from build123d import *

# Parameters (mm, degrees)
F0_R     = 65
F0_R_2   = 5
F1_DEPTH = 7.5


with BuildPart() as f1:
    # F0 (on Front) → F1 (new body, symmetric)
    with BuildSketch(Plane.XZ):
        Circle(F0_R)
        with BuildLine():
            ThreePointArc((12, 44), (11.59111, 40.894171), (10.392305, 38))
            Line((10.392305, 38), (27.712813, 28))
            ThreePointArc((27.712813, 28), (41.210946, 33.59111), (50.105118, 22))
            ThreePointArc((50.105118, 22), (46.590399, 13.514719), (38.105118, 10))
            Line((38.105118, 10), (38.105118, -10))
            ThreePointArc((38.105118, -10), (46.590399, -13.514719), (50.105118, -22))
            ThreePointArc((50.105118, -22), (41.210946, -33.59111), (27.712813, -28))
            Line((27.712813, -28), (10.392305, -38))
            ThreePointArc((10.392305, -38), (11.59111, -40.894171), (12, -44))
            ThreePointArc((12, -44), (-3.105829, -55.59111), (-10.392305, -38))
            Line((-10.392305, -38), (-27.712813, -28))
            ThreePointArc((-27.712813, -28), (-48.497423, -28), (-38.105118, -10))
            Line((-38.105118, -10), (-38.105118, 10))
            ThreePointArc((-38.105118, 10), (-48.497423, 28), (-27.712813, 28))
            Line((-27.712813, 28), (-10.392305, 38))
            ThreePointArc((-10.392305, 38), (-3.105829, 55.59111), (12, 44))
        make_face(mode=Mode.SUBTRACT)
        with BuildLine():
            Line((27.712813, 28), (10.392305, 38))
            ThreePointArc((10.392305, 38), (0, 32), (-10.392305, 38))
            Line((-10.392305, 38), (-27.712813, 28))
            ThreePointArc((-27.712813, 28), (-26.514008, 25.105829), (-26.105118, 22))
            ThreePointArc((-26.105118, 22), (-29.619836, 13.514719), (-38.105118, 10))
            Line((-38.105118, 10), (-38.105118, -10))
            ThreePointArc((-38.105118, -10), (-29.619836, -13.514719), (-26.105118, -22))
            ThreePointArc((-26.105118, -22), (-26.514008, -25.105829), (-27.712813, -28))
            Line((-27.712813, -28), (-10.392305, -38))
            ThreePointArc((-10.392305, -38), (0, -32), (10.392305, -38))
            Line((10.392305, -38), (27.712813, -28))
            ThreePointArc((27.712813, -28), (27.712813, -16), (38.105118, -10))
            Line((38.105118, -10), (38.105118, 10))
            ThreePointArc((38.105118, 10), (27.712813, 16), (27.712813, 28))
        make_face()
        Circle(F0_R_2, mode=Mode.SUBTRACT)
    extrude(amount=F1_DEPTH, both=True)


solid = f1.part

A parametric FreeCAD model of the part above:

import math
import FreeCAD as App
import Part
import Sketcher
Q = App.Units.Quantity

doc = App.newDocument("Part")
body = doc.addObject("PartDesign::Body", "Body")

sketch1 = body.newObject("Sketcher::SketchObject", "Sketch")
sketch1.AttachmentSupport = (doc.getObject("XZ_Plane"), [""])
sketch1.MapMode = "FlatFace"
sketch1.addGeometry([
    Part.Circle(App.Vector(0, 0, 0), App.Vector(0, 0, 1), 65),
    Part.ArcOfCircle(Part.Circle(App.Vector(0, -44, 0), App.Vector(0, 0, 1), 12), math.radians(150), math.radians(360)),
    Part.ArcOfCircle(Part.Circle(App.Vector(0, -44, 0), App.Vector(0, 0, 1), 12), math.radians(30), math.radians(150)),
    Part.ArcOfCircle(Part.Circle(App.Vector(0, -44, 0), App.Vector(0, 0, 1), 12), math.radians(0), math.radians(30)),
    Part.ArcOfCircle(Part.Circle(App.Vector(-38, -22, 0), App.Vector(0, 0, 1), 12), math.radians(90), math.radians(330)),
    Part.ArcOfCircle(Part.Circle(App.Vector(-38, -22, 0), App.Vector(0, 0, 1), 12), math.radians(0), math.radians(90)),
    Part.ArcOfCircle(Part.Circle(App.Vector(-38, -22, 0), App.Vector(0, 0, 1), 12), math.radians(-30), math.radians(0)),
    Part.ArcOfCircle(Part.Circle(App.Vector(38, -22, 0), App.Vector(0, 0, 1), 12), math.radians(-150), math.radians(0)),
    Part.ArcOfCircle(Part.Circle(App.Vector(38, -22, 0), App.Vector(0, 0, 1), 12), math.radians(90), math.radians(210)),
    Part.ArcOfCircle(Part.Circle(App.Vector(38, -22, 0), App.Vector(0, 0, 1), 12), math.radians(0), math.radians(90)),
    Part.ArcOfCircle(Part.Circle(App.Vector(-38, 22, 0), App.Vector(0, 0, 1), 12), math.radians(30), math.radians(270)),
    Part.ArcOfCircle(Part.Circle(App.Vector(-38, 22, 0), App.Vector(0, 0, 1), 12), math.radians(0), math.radians(30)),
    Part.ArcOfCircle(Part.Circle(App.Vector(-38, 22, 0), App.Vector(0, 0, 1), 12), math.radians(-90), math.radians(0)),
    Part.ArcOfCircle(Part.Circle(App.Vector(0, 44, 0), App.Vector(0, 0, 1), 12), math.radians(0), math.radians(210)),
    Part.ArcOfCircle(Part.Circle(App.Vector(0, 44, 0), App.Vector(0, 0, 1), 12), math.radians(-30), math.radians(0)),
    Part.ArcOfCircle(Part.Circle(App.Vector(0, 44, 0), App.Vector(0, 0, 1), 12), math.radians(-150), math.radians(-30)),
    Part.Circle(App.Vector(0, 0, 0), App.Vector(0, 0, 1), 5),
    Part.ArcOfCircle(Part.Circle(App.Vector(38, 22, 0), App.Vector(0, 0, 1), 12), math.radians(-90), math.radians(0)),
    Part.ArcOfCircle(Part.Circle(App.Vector(38, 22, 0), App.Vector(0, 0, 1), 12), math.radians(150), math.radians(270)),
    Part.ArcOfCircle(Part.Circle(App.Vector(38, 22, 0), App.Vector(0, 0, 1), 12), math.radians(0), math.radians(150)),
], False)
sketch1.addConstraint([
    Sketcher.Constraint("Tangent", 1, 1, 2, 2),
    Sketcher.Constraint("Tangent", 2, 1, 3, 2),
    Sketcher.Constraint("Tangent", 3, 1, 1, 2),
    Sketcher.Constraint("Tangent", 4, 1, 5, 2),
    Sketcher.Constraint("Tangent", 5, 1, 6, 2),
    Sketcher.Constraint("Tangent", 6, 1, 4, 2),
    Sketcher.Constraint("Tangent", 7, 1, 8, 2),
    Sketcher.Constraint("Tangent", 8, 1, 9, 2),
    Sketcher.Constraint("Tangent", 9, 1, 7, 2),
    Sketcher.Constraint("Tangent", 10, 1, 11, 2),
    Sketcher.Constraint("Tangent", 11, 1, 12, 2),
    Sketcher.Constraint("Tangent", 12, 1, 10, 2),
    Sketcher.Constraint("Tangent", 13, 1, 14, 2),
    Sketcher.Constraint("Tangent", 14, 1, 15, 2),
    Sketcher.Constraint("Tangent", 15, 1, 13, 2),
    Sketcher.Constraint("Tangent", 17, 1, 18, 2),
    Sketcher.Constraint("Tangent", 18, 1, 19, 2),
    Sketcher.Constraint("Tangent", 19, 1, 17, 2),
    Sketcher.Constraint("Coincident", 0, 3, -1, 1),
    Sketcher.Constraint("Coincident", 16, 3, -1, 1),
    Sketcher.Constraint("Equal", 2, 4),
    Sketcher.Constraint("Equal", 5, 7),
    Sketcher.Constraint("Equal", 9, 10),
    Sketcher.Constraint("Equal", 12, 13),
    Sketcher.Constraint("Equal", 15, 17),
    Sketcher.Constraint("Symmetric", 7, 3, 10, 3, -1, 1),
    Sketcher.Constraint("Symmetric", 1, 3, 13, 3, -1, 1),
    Sketcher.Constraint("Symmetric", 4, 3, 17, 3, -1, 1),
    Sketcher.Constraint("Symmetric", 4, 3, 7, 3, -2),
    Sketcher.Constraint("Symmetric", 1, 1, 2, 1, -2),
    Sketcher.Constraint("Horizontal", 2, 3, 3, 1),
    Sketcher.Constraint("Horizontal", 9, 3, 5, 1),
    Sketcher.Constraint("Horizontal", 6, 1, 7, 1),
    Sketcher.Constraint("Horizontal", 5, 1, 9, 1),
    Sketcher.Constraint("Horizontal", 19, 3, 11, 1),
    Sketcher.Constraint("Horizontal", 15, 3, 13, 1),
    Sketcher.Constraint("Horizontal", 14, 1, 15, 1),
    Sketcher.Constraint("Horizontal", 10, 1, 18, 1),
    Sketcher.Constraint("Horizontal", 11, 1, 19, 1),
    Sketcher.Constraint("Vertical", 12, 3, 4, 1),
    Sketcher.Constraint("Vertical", 19, 3, 8, 1),
    Sketcher.Constraint("Vertical", 6, 1, 10, 1),
    Sketcher.Constraint("Vertical", 4, 1, 12, 1),
    Sketcher.Constraint("Vertical", 2, 1, 14, 1),
    Sketcher.Constraint("Vertical", 8, 1, 17, 1),
    Sketcher.Constraint("Diameter", 0, Q("130 mm")),
    Sketcher.Constraint("Diameter", 16, Q("10 mm")),
    Sketcher.Constraint("Radius", 1, Q("12 mm")),
    Sketcher.Constraint("DistanceY", 1, 3, -1, 1, Q("44 mm")),
    Sketcher.Constraint("DistanceY", 4, 3, -1, 1, Q("22 mm")),
    Sketcher.Constraint("DistanceY", 1, 1, -1, 1, Q("38 mm")),
    Sketcher.Constraint("DistanceY", 6, 1, -1, 1, Q("28 mm")),
    Sketcher.Constraint("DistanceX", 5, 1, -1, 1, Q("26.105118 mm")),
])
pad1 = body.newObject("PartDesign::Pad", "Pad")
pad1.Profile = sketch1
pad1.Length = 15
pad1.Midplane = True

doc.recompute()
